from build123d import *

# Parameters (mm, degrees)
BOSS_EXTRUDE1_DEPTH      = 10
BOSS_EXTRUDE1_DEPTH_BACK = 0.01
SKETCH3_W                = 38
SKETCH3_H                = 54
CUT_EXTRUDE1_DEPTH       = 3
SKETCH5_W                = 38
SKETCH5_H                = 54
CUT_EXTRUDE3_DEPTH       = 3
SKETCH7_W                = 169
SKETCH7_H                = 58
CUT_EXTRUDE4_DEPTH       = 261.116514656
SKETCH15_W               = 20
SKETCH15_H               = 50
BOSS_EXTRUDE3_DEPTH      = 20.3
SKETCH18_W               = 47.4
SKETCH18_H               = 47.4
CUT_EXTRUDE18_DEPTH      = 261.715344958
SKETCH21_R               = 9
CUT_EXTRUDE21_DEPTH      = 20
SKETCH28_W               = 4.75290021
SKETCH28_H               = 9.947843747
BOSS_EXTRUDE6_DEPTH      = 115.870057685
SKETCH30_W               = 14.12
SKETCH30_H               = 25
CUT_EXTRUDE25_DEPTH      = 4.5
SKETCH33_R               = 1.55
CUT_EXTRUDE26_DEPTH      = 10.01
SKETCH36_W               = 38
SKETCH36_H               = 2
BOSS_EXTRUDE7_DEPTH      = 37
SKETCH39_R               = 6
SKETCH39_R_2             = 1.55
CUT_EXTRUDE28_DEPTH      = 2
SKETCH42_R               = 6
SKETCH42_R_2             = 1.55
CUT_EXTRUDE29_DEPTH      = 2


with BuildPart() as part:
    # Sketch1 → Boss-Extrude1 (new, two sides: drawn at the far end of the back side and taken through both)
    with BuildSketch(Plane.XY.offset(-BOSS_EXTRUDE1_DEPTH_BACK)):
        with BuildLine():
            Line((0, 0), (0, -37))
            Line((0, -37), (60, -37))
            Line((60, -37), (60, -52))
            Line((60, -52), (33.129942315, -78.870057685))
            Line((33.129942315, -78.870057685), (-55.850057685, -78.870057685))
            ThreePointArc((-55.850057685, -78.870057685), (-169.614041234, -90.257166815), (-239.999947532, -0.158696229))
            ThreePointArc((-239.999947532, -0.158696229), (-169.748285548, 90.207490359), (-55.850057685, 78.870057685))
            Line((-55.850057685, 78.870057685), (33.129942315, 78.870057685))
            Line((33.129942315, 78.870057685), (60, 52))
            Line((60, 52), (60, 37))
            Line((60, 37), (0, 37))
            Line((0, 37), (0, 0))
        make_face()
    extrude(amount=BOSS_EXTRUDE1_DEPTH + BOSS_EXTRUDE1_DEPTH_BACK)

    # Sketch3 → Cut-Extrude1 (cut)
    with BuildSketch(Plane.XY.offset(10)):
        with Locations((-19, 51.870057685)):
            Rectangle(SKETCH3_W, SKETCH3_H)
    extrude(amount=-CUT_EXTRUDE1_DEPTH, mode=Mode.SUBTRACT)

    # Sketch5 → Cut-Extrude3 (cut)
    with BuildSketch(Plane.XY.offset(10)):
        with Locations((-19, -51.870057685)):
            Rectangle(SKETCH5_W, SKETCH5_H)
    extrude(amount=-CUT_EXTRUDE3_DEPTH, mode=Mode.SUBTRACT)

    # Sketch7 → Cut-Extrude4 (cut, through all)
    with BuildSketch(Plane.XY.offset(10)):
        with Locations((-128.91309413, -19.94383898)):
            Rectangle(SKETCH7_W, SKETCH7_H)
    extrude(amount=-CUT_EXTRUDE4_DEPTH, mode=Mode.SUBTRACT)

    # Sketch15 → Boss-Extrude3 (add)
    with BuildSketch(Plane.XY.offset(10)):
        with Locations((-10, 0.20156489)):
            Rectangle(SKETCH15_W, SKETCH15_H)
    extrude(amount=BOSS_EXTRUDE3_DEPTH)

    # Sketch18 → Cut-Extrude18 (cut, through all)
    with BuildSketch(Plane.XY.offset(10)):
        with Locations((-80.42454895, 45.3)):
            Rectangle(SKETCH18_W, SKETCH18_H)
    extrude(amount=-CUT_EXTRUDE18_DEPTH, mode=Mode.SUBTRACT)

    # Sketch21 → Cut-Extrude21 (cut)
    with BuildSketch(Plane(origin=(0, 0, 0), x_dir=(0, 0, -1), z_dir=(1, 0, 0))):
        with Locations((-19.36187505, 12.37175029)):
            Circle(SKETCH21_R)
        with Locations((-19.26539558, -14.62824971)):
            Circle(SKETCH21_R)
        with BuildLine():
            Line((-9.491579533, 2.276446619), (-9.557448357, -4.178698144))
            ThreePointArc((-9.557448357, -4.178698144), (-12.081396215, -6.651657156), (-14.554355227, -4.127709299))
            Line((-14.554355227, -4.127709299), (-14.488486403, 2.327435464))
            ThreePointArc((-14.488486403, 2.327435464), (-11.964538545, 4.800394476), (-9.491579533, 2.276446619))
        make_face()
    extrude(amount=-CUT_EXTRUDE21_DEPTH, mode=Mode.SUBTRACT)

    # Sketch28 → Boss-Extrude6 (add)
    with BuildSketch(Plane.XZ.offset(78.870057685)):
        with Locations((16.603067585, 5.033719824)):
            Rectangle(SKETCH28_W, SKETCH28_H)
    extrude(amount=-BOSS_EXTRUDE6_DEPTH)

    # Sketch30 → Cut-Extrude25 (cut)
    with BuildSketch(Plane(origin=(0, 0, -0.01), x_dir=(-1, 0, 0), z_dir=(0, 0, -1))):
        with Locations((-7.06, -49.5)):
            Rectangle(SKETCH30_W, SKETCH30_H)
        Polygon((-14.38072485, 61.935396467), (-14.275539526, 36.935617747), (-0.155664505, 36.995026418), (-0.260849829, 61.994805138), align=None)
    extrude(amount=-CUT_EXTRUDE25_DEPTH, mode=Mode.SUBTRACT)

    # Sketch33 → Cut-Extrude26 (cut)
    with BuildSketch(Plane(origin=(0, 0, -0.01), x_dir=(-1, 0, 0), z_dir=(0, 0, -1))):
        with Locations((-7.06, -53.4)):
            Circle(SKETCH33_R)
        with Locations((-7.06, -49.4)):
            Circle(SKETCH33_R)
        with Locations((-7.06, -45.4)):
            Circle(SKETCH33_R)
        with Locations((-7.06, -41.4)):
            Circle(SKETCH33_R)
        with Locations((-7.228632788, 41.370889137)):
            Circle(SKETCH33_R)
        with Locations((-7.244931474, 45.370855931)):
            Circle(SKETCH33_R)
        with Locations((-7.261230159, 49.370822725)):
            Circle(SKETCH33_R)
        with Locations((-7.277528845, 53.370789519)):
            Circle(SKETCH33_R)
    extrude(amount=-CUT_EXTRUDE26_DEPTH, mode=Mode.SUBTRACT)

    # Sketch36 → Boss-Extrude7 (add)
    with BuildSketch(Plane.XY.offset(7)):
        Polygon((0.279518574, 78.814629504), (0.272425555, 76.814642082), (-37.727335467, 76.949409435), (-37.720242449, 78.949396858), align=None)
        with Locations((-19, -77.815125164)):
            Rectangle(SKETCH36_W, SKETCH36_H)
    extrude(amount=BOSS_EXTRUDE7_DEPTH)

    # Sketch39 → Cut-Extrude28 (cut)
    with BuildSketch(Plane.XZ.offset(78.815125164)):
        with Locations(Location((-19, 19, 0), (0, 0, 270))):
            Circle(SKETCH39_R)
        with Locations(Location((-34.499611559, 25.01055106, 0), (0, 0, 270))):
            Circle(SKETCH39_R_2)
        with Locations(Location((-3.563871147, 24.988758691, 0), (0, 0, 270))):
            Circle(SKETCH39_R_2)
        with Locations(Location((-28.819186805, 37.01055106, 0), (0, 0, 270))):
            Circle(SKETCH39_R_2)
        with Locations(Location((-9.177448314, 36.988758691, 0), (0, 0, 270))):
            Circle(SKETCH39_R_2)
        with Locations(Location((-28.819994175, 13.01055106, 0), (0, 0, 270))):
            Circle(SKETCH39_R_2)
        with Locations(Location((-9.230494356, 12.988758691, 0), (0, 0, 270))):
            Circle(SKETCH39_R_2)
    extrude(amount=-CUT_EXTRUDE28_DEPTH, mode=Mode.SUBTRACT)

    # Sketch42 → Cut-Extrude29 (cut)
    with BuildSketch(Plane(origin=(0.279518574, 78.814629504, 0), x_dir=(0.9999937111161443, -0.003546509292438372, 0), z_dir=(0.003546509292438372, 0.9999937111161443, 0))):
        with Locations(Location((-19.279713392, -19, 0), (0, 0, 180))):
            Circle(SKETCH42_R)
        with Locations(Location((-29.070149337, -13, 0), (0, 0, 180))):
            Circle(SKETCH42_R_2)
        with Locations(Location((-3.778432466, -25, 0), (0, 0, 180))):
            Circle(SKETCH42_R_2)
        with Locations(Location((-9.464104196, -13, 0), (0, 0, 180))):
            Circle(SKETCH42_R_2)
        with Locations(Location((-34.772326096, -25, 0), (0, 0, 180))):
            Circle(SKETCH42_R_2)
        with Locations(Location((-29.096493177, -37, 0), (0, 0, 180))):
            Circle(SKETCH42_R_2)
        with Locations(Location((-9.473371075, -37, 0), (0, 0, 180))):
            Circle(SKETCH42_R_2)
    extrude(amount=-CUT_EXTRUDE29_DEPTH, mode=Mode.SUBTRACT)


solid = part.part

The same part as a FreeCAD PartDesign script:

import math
import FreeCAD as App
import Part
import Sketcher
from FreeCAD import Vector
Q = App.Units.Quantity

doc = App.newDocument("Part")
body = doc.addObject("PartDesign::Body", "Body")

sketch1 = body.newObject("Sketcher::SketchObject", "Sketch")
sketch1.AttachmentSupport = (doc.getObject("XY_Plane"), [""])
sketch1.MapMode = "FlatFace"
sketch1.addGeometry([
    Part.LineSegment(Vector(60, -37, 0), Vector(0, -37, 0)),
    Part.LineSegment(Vector(0, -37, 0), Vector(0, 37, 0)),
    Part.LineSegment(Vector(0, 37, 0), Vector(60, 37, 0)),
    Part.LineSegment(Vector(60, 37, 0), Vector(60, 52, 0)),
    Part.LineSegment(Vector(60, 52, 0), Vector(33, 79, 0)),
    Part.LineSegment(Vector(33, 79, 0), Vector(-56, 79, 0)),
    Part.ArcOfCircle(Part.Circle(Vector(-123, -19, 0), Vector(0, 0, 1), 118), math.radians(55), math.radians(171)),
    Part.ArcOfCircle(Part.Circle(Vector(-123, 19, 0), Vector(0, 0, 1), 118), math.radians(-171), math.radians(-55)),
    Part.LineSegment(Vector(-56, -79, 0), Vector(33, -79, 0)),
    Part.LineSegment(Vector(33, -79, 0), Vector(60, -52, 0)),
    Part.LineSegment(Vector(60, -52, 0), Vector(60, -37, 0)),
], False)
sketch1.addConstraint([
    Sketcher.Constraint("Coincident", 0, 2, 1, 1),
    Sketcher.Constraint("Coincident", 1, 2, 2, 1),
    Sketcher.Constraint("Coincident", 2, 2, 3, 1),
    Sketcher.Constraint("Coincident", 3, 2, 4, 1),
    Sketcher.Constraint("Coincident", 4, 2, 5, 1),
    Sketcher.Constraint("Coincident", 5, 2, 6, 1),
    Sketcher.Constraint("Coincident", 6, 2, 7, 1),
    Sketcher.Constraint("Coincident", 7, 2, 8, 1),
    Sketcher.Constraint("Coincident", 8, 2, 9, 1),
    Sketcher.Constraint("Coincident", 9, 2, 10, 1),
    Sketcher.Constraint("Coincident", 10, 2, 0, 1),
    Sketcher.Constraint("Horizontal", 0),
    Sketcher.Constraint("Vertical", 1),
    Sketcher.Constraint("Horizontal", 2),
    Sketcher.Constraint("Vertical", 3),
    Sketcher.Constraint("Horizontal", 5),
    Sketcher.Constraint("Horizontal", 8),
    Sketcher.Constraint("Vertical", 10),
    Sketcher.Constraint("Symmetric", 0, 2, 1, 2, -1, 1),
    Sketcher.Constraint("Symmetric", 5, 2, 7, 2, -1),
    Sketcher.Constraint("Symmetric", 3, 2, 9, 2, -1),
    Sketcher.Constraint("Perpendicular", 4, 9),
    Sketcher.Constraint("Vertical", 6, 3, 7, 3),
    Sketcher.Constraint("Vertical", 4, 2, 8, 2),
    Sketcher.Constraint("DistanceX", 0, 2, 0, 1, Q("60 mm")),
    Sketcher.Constraint("DistanceY", 1, 1, 1, 2, Q("74 mm")),
    Sketcher.Constraint("DistanceY", 3, 1, 3, 2, Q("15 mm")),
    Sketcher.Constraint("Distance", 4, Q("38 mm")),
    Sketcher.Constraint("DistanceX", 5, 2, 5, 1, Q("88.98 mm")),
    Sketcher.Constraint("Radius", 6, Q("118.378204 mm")),
    Sketcher.Constraint("Radius", 7, Q("118.439873 mm")),
    Sketcher.Constraint("DistanceX", 6, 2, 6, 3, Q("116.936702 mm")),
])
pad1 = body.newObject("PartDesign::Pad", "Pad")
pad1.Profile = sketch1
pad1.Type = "TwoLengths"
pad1.Length = 10
pad1.Length2 = 0.01

sketch2 = body.newObject("Sketcher::SketchObject", "Sketch001")
sketch2.AttachmentSupport = (doc.getObject("XY_Plane"), [""])
sketch2.MapMode = "FlatFace"
sketch2.AttachmentOffset = App.Placement(Vector(0, 0, 10), App.Rotation())
sketch2.addGeometry([
    Part.LineSegment(Vector(-38, 79, 0), Vector(-38, 25, 0)),
    Part.LineSegment(Vector(-38, 25, 0), Vector(0, 25, 0)),
    Part.LineSegment(Vector(0, 25, 0), Vector(0, 79, 0)),
    Part.LineSegment(Vector(0, 79, 0), Vector(-38, 79, 0)),
], False)
sketch2.addConstraint([
    Sketcher.Constraint("Coincident", 0, 2, 1, 1),
    Sketcher.Constraint("Coincident", 1, 2, 2, 1),
    Sketcher.Constraint("Coincident", 2, 2, 3, 1),
    Sketcher.Constraint("Coincident", 3, 2, 0, 1),
    Sketcher.Constraint("Vertical", 0),
    Sketcher.Constraint("Horizontal", 1),
    Sketcher.Constraint("Vertical", 2),
    Sketcher.Constraint("Horizontal", 3),
    Sketcher.Constraint("PointOnObject", 1, 2, -2),
    Sketcher.Constraint("DistanceX", 1, 1, 1, 2, Q("38 mm")),
    Sketcher.Constraint("DistanceY", 0, 2, 0, 1, Q("54 mm")),
    Sketcher.Constraint("DistanceY", -1, 1, 0, 2, Q("24.870058 mm")),
])
pocket1 = body.newObject("PartDesign::Pocket", "Pocket")
pocket1.Profile = sketch2
pocket1.Length = 3

sketch3 = body.newObject("Sketcher::SketchObject", "Sketch002")
sketch3.AttachmentSupport = (doc.getObject("XY_Plane"), [""])
sketch3.MapMode = "FlatFace"
sketch3.AttachmentOffset = App.Placement(Vector(0, 0, 10), App.Rotation())
sketch3.addGeometry([
    Part.LineSegment(Vector(-38, -25, 0), Vector(-38, -79, 0)),
    Part.LineSegment(Vector(-38, -79, 0), Vector(0, -79, 0)),
    Part.LineSegment(Vector(0, -79, 0), Vector(0, -25, 0)),
    Part.LineSegment(Vector(0, -25, 0), Vector(-38, -25, 0)),
], False)
sketch3.addConstraint([
    Sketcher.Constraint("Coincident", 0, 2, 1, 1),
    Sketcher.Constraint("Coincident", 1, 2, 2, 1),
    Sketcher.Constraint("Coincident", 2, 2, 3, 1),
    Sketcher.Constraint("Coincident", 3, 2, 0, 1),
    Sketcher.Constraint("Vertical", 0),
    Sketcher.Constraint("Horizontal", 1),
    Sketcher.Constraint("Vertical", 2),
    Sketcher.Constraint("Horizontal", 3),
    Sketcher.Constraint("PointOnObject", 1, 2, -2),
    Sketcher.Constraint("DistanceX", 1, 1, 1, 2, Q("38 mm")),
    Sketcher.Constraint("DistanceY", 0, 2, 0, 1, Q("54 mm")),
    Sketcher.Constraint("DistanceY", 0, 2, -1, 1, Q("78.870058 mm")),
])
pocket2 = body.newObject("PartDesign::Pocket", "Pocket001")
pocket2.Profile = sketch3
pocket2.Length = 3

sketch4 = body.newObject("Sketcher::SketchObject", "Sketch003")
sketch4.AttachmentSupport = (doc.getObject("XY_Plane"), [""])
sketch4.MapMode = "FlatFace"
sketch4.AttachmentOffset = App.Placement(Vector(0, 0, 10), App.Rotation())
sketch4.addGeometry([
    Part.LineSegment(Vector(-213, 9, 0), Vector(-213, -49, 0)),
    Part.LineSegment(Vector(-213, -49, 0), Vector(-44, -49, 0)),
    Part.LineSegment(Vector(-44, -49, 0), Vector(-44, 9, 0)),
    Part.LineSegment(Vector(-44, 9, 0), Vector(-213, 9, 0)),
], False)
sketch4.addConstraint([
    Sketcher.Constraint("Coincident", 0, 2, 1, 1),
    Sketcher.Constraint("Coincident", 1, 2, 2, 1),
    Sketcher.Constraint("Coincident", 2, 2, 3, 1),
    Sketcher.Constraint("Coincident", 3, 2, 0, 1),
    Sketcher.Constraint("Vertical", 0),
    Sketcher.Constraint("Horizontal", 1),
    Sketcher.Constraint("Vertical", 2),
    Sketcher.Constraint("Horizontal", 3),
    Sketcher.Constraint("DistanceX", 1, 1, 1, 2, Q("169 mm")),
    Sketcher.Constraint("DistanceY", 0, 2, 0, 1, Q("58 mm")),
    Sketcher.Constraint("DistanceY", 0, 2, -1, 1, Q("48.943839 mm")),
    Sketcher.Constraint("DistanceX", 0, 2, -1, 1, Q("213.413094 mm")),
])
pocket3 = body.newObject("PartDesign::Pocket", "Pocket002")
pocket3.Profile = sketch4
pocket3.Type = "ThroughAll"

sketch5 = body.newObject("Sketcher::SketchObject", "Sketch004")
sketch5.AttachmentSupport = (doc.getObject("XY_Plane"), [""])
sketch5.MapMode = "FlatFace"
sketch5.AttachmentOffset = App.Placement(Vector(0, 0, 10), App.Rotation())
sketch5.addGeometry([
    Part.LineSegment(Vector(-20, 25, 0), Vector(-20, -25, 0)),
    Part.LineSegment(Vector(-20, -25, 0), Vector(0, -25, 0)),
    Part.LineSegment(Vector(0, -25, 0), Vector(0, 25, 0)),
    Part.LineSegment(Vector(0, 25, 0), Vector(-20, 25, 0)),
], False)
sketch5.addConstraint([
    Sketcher.Constraint("Coincident", 0, 2, 1, 1),
    Sketcher.Constraint("Coincident", 1, 2, 2, 1),
    Sketcher.Constraint("Coincident", 2, 2, 3, 1),
    Sketcher.Constraint("Coincident", 3, 2, 0, 1),
    Sketcher.Constraint("Vertical", 0),
    Sketcher.Constraint("Horizontal", 1),
    Sketcher.Constraint("Vertical", 2),
    Sketcher.Constraint("Horizontal", 3),
    Sketcher.Constraint("PointOnObject", 1, 2, -2),
    Sketcher.Constraint("DistanceX", 1, 1, 1, 2, Q("20 mm")),
    Sketcher.Constraint("DistanceY", 0, 2, 0, 1, Q("50 mm")),
    Sketcher.Constraint("DistanceY", 0, 2, -1, 1, Q("24.798435 mm")),
])
pad2 = body.newObject("PartDesign::Pad", "Pad001")
pad2.Profile = sketch5
pad2.Length = 20.3

sketch6 = body.newObject("Sketcher::SketchObject", "Sketch005")
sketch6.AttachmentSupport = (doc.getObject("XY_Plane"), [""])
sketch6.MapMode = "FlatFace"
sketch6.AttachmentOffset = App.Placement(Vector(0, 0, 10), App.Rotation())
sketch6.addGeometry([
    Part.LineSegment(Vector(-104, 69, 0), Vector(-104, 22, 0)),
    Part.LineSegment(Vector(-104, 22, 0), Vector(-57, 22, 0)),
    Part.LineSegment(Vector(-57, 22, 0), Vector(-57, 69, 0)),
    Part.LineSegment(Vector(-57, 69, 0), Vector(-104, 69, 0)),
], False)
sketch6.addConstraint([
    Sketcher.Constraint("Coincident", 0, 2, 1, 1),
    Sketcher.Constraint("Coincident", 1, 2, 2, 1),
    Sketcher.Constraint("Coincident", 2, 2, 3, 1),
    Sketcher.Constraint("Coincident", 3, 2, 0, 1),
    Sketcher.Constraint("Vertical", 0),
    Sketcher.Constraint("Horizontal", 1),
    Sketcher.Constraint("Vertical", 2),
    Sketcher.Constraint("Horizontal", 3),
    Sketcher.Constraint("Equal", 3, 0),
    Sketcher.Constraint("DistanceX", 1, 1, 1, 2, Q("47.4 mm")),
    Sketcher.Constraint("DistanceY", -1, 1, 2, 2, Q("69 mm")),
    Sketcher.Constraint("DistanceX", 0, 2, -1, 1, Q("104.124549 mm")),
])
pocket4 = body.newObject("PartDesign::Pocket", "Pocket003")
pocket4.Profile = sketch6
pocket4.Type = "ThroughAll"

sketch7 = body.newObject("Sketcher::SketchObject", "Sketch006")
sketch7.AttachmentSupport = (doc.getObject("YZ_Plane"), [""])
sketch7.MapMode = "FlatFace"
sketch7.addGeometry([
    Part.Circle(Vector(12.4, 19.4, 0), Vector(0, 0, 1), 9),
    Part.Circle(Vector(-14.6, 19.3, 0), Vector(0, 0, 1), 9),
    Part.LineSegment(Vector(-4.2, 9.6, 0), Vector(2.3, 9.5, 0)),
    Part.ArcOfCircle(Part.Circle(Vector(2.3, 12, 0), Vector(0, 0, 1), 2.5), math.radians(-91), math.radians(89)),
    Part.LineSegment(Vector(2.3, 14.5, 0), Vector(-4.1, 14.6, 0)),
    Part.ArcOfCircle(Part.Circle(Vector(-4.2, 12.1, 0), Vector(0, 0, 1), 2.5), math.radians(89), math.radians(269)),
], False)
sketch7.addConstraint([
    Sketcher.Constraint("Tangent", 2, 2, 3, 1),
    Sketcher.Constraint("Tangent", 3, 2, 4, 1),
    Sketcher.Constraint("Tangent", 4, 2, 5, 1),
    Sketcher.Constraint("Tangent", 5, 2, 2, 1),
    Sketcher.Constraint("Equal", 0, 1),
    Sketcher.Constraint("Equal", 3, 5),
    Sketcher.Constraint("Diameter", 0, Q("18 mm")),
    Sketcher.Constraint("DistanceX", 1, 3, 0, 3, Q("27 mm")),
    Sketcher.Constraint("Radius", 3, Q("2.498584 mm")),
    Sketcher.Constraint("DistanceY", -1, 1, 5, 3, Q("12.055902 mm")),
    Sketcher.Constraint("DistanceX", 5, 2, -1, 1, Q("4.178698 mm")),
    Sketcher.Constraint("Distance", 2, Q("6.455481 mm")),
    Sketcher.Constraint("DistanceX", -1, 1, 0, 3, Q("12.37175 mm")),
    Sketcher.Constraint("DistanceX", -1, 1, 3, 3, Q("2.301941 mm")),
    Sketcher.Constraint("DistanceY", 1, 3, 0, 3, Q("0.096479 mm")),
    Sketcher.Constraint("DistanceY", 3, 2, 0, 3, Q("4.873389 mm")),
])
pocket5 = body.newObject("PartDesign::Pocket", "Pocket004")
pocket5.Profile = sketch7
pocket5.Length = 20

sketch8 = body.newObject("Sketcher::SketchObject", "Sketch007")
sketch8.AttachmentSupport = (doc.getObject("XZ_Plane"), [""])
sketch8.MapMode = "FlatFace"
sketch8.AttachmentOffset = App.Placement(Vector(0, 0, 78.870058), App.Rotation())
sketch8.addGeometry([
    Part.LineSegment(Vector(14.2, 10, 0), Vector(14.2, 0.1, 0)),
    Part.LineSegment(Vector(14.2, 0.1, 0), Vector(19, 0.1, 0)),
    Part.LineSegment(Vector(19, 0.1, 0), Vector(19, 10, 0)),
    Part.LineSegment(Vector(19, 10, 0), Vector(14.2, 10, 0)),
], False)
sketch8.addConstraint([
    Sketcher.Constraint("Coincident", 0, 2, 1, 1),
    Sketcher.Constraint("Coincident", 1, 2, 2, 1),
    Sketcher.Constraint("Coincident", 2, 2, 3, 1),
    Sketcher.Constraint("Coincident", 3, 2, 0, 1),
    Sketcher.Constraint("Vertical", 0),
    Sketcher.Constraint("Horizontal", 1),
    Sketcher.Constraint("Vertical", 2),
    Sketcher.Constraint("Horizontal", 3),
    Sketcher.Constraint("DistanceX", 1, 1, 1, 2, Q("4.7529 mm")),
    Sketcher.Constraint("DistanceY", 0, 2, 0, 1, Q("9.947844 mm")),
    Sketcher.Constraint("DistanceY", -1, 1, 2, 2, Q("10.007642 mm")),
    Sketcher.Constraint("DistanceX", -1, 1, 0, 2, Q("14.226617 mm")),
])
pad3 = body.newObject("PartDesign::Pad", "Pad002")
pad3.Profile = sketch8
pad3.Length = 115.870058
pad3.Reversed = True

sketch9 = body.newObject("Sketcher::SketchObject", "Sketch008")
sketch9.AttachmentSupport = (doc.getObject("XY_Plane"), [""])
sketch9.MapMode = "FlatFace"
sketch9.AttachmentOffset = App.Placement(Vector(0, 0, -0.01), App.Rotation())
sketch9.addGeometry([
    Part.LineSegment(Vector(14, -37, 0), Vector(14, -62, 0)),
    Part.LineSegment(Vector(14, -62, 0), Vector(0, -62, 0)),
    Part.LineSegment(Vector(0, -62, 0), Vector(0, -37, 0)),
    Part.LineSegment(Vector(0, -37, 0), Vector(14, -37, 0)),
    Part.LineSegment(Vector(14, 62, 0), Vector(14, 37, 0)),
    Part.LineSegment(Vector(14, 37, 0), Vector(0, 37, 0)),
    Part.LineSegment(Vector(0, 37, 0), Vector(0, 62, 0)),
    Part.LineSegment(Vector(0, 62, 0), Vector(14, 62, 0)),
], False)
sketch9.addConstraint([
    Sketcher.Constraint("Coincident", 0, 2, 1, 1),
    Sketcher.Constraint("Coincident", 1, 2, 2, 1),
    Sketcher.Constraint("Coincident", 2, 2, 3, 1),
    Sketcher.Constraint("Coincident", 3, 2, 0, 1),
    Sketcher.Constraint("Coincident", 4, 2, 5, 1),
    Sketcher.Constraint("Coincident", 5, 2, 6, 1),
    Sketcher.Constraint("Coincident", 6, 2, 7, 1),
    Sketcher.Constraint("Coincident", 7, 2, 4, 1),
    Sketcher.Constraint("Vertical", 0),
    Sketcher.Constraint("Horizontal", 1),
    Sketcher.Constraint("Vertical", 2),
    Sketcher.Constraint("Horizontal", 3),
    Sketcher.Constraint("PointOnObject", 1, 2, -2),
    Sketcher.Constraint("Perpendicular", 4, 5),
    Sketcher.Constraint("Perpendicular", 5, 6),
    Sketcher.Constraint("Perpendicular", 6, 7),
    Sketcher.Constraint("DistanceY", 0, 2, 0, 1, Q("25 mm")),
    Sketcher.Constraint("Distance", 4, Q("25 mm")),
    Sketcher.Constraint("DistanceY", 0, 2, -1, 1, Q("62 mm")),
    Sketcher.Constraint("DistanceX", 1, 2, 1, 1, Q("14.12 mm")),
    Sketcher.Constraint("Distance", 5, Q("14.12 mm")),
    Sketcher.Constraint("DistanceX", -1, 1, 4, 2, Q("14.27554 mm")),
    Sketcher.Constraint("DistanceX", -1, 1, 6, 2, Q("0.26085 mm")),
    Sketcher.Constraint("DistanceY", -1, 1, 4, 2, Q("36.935618 mm")),
])
pocket6 = body.newObject("PartDesign::Pocket", "Pocket005")
pocket6.Profile = sketch9
pocket6.Length = 4.5
pocket6.Reversed = True

sketch10 = body.newObject("Sketcher::SketchObject", "Sketch009")
sketch10.AttachmentSupport = (doc.getObject("XY_Plane"), [""])
sketch10.MapMode = "FlatFace"
sketch10.AttachmentOffset = App.Placement(Vector(0, 0, -0.01), App.Rotation())
sketch10.addGeometry([
    Part.Circle(Vector(7.1, -53.4, 0), Vector(0, 0, 1), 1.6),
    Part.Circle(Vector(7.1, -49.4, 0), Vector(0, 0, 1), 1.6),
    Part.Circle(Vector(7.1, -45.4, 0), Vector(0, 0, 1), 1.6),
    Part.Circle(Vector(7.1, -41.4, 0), Vector(0, 0, 1), 1.6),
    Part.Circle(Vector(7.2, 41.4, 0), Vector(0, 0, 1), 1.6),
    Part.Circle(Vector(7.2, 45.4, 0), Vector(0, 0, 1), 1.6),
    Part.Circle(Vector(7.3, 49.4, 0), Vector(0, 0, 1), 1.6),
    Part.Circle(Vector(7.3, 53.4, 0), Vector(0, 0, 1), 1.6),
], False)
sketch10.addConstraint([
    Sketcher.Constraint("Equal", 0, 1),
    Sketcher.Constraint("Equal", 1, 2),
    Sketcher.Constraint("Equal", 2, 3),
    Sketcher.Constraint("Equal", 3, 4),
    Sketcher.Constraint("Equal", 4, 5),
    Sketcher.Constraint("Equal", 5, 6),
    Sketcher.Constraint("Equal", 6, 7),
    Sketcher.Constraint("Vertical", 0, 3, 1, 3),
    Sketcher.Constraint("Vertical", 1, 3, 2, 3),
    Sketcher.Constraint("Vertical", 2, 3, 3, 3),
    Sketcher.Constraint("Diameter", 0, Q("3.1 mm")),
    Sketcher.Constraint("DistanceY", 0, 3, 1, 3, Q("4 mm")),
    Sketcher.Constraint("DistanceY", 1, 3, 2, 3, Q("4 mm")),
    Sketcher.Constraint("DistanceY", 2, 3, 3, 3, Q("4 mm")),
    Sketcher.Constraint("DistanceY", 0, 3, -1, 1, Q("53.4 mm")),
    Sketcher.Constraint("DistanceX", -1, 1, 0, 3, Q("7.06 mm")),
    Sketcher.Constraint("DistanceX", 4, 3, 5, 3, Q("0.016299 mm")),
    Sketcher.Constraint("DistanceX", 5, 3, 6, 3, Q("0.016299 mm")),
    Sketcher.Constraint("DistanceX", 6, 3, 7, 3, Q("0.016299 mm")),
    Sketcher.Constraint("DistanceY", 4, 3, 7, 3, Q("11.9999 mm")),
    Sketcher.Constraint("DistanceY", -1, 1, 4, 3, Q("41.370889 mm")),
    Sketcher.Constraint("DistanceX", -1, 1, 5, 3, Q("7.244931 mm")),
    Sketcher.Constraint("DistanceY", -1, 1, 5, 3, Q("45.370856 mm")),
    Sketcher.Constraint("DistanceY", -1, 1, 6, 3, Q("49.370823 mm")),
])
pocket7 = body.newObject("PartDesign::Pocket", "Pocket006")
pocket7.Profile = sketch10
pocket7.Length = 10.01
pocket7.Reversed = True

sketch11 = body.newObject("Sketcher::SketchObject", "Sketch010")
sketch11.AttachmentSupport = (doc.getObject("XY_Plane"), [""])
sketch11.MapMode = "FlatFace"
sketch11.AttachmentOffset = App.Placement(Vector(0, 0, 7), App.Rotation())
sketch11.addGeometry([
    Part.LineSegment(Vector(0.3, 76.8, 0), Vector(0.3, 78.8, 0)),
    Part.LineSegment(Vector(0.3, 78.8, 0), Vector(-37.7, 78.9, 0)),
    Part.LineSegment(Vector(-37.7, 78.9, 0), Vector(-37.7, 76.9, 0)),
    Part.LineSegment(Vector(-37.7, 76.9, 0), Vector(0.3, 76.8, 0)),
    Part.LineSegment(Vector(-38, -76.8, 0), Vector(-38, -78.8, 0)),
    Part.LineSegment(Vector(-38, -78.8, 0), Vector(0, -78.8, 0)),
    Part.LineSegment(Vector(0, -78.8, 0), Vector(0, -76.8, 0)),
    Part.LineSegment(Vector(0, -76.8, 0), Vector(-38, -76.8, 0)),
], False)
sketch11.addConstraint([
    Sketcher.Constraint("Coincident", 0, 2, 1, 1),
    Sketcher.Constraint("Coincident", 1, 2, 2, 1),
    Sketcher.Constraint("Coincident", 2, 2, 3, 1),
    Sketcher.Constraint("Coincident", 3, 2, 0, 1),
    Sketcher.Constraint("Coincident", 4, 2, 5, 1),
    Sketcher.Constraint("Coincident", 5, 2, 6, 1),
    Sketcher.Constraint("Coincident", 6, 2, 7, 1),
    Sketcher.Constraint("Coincident", 7, 2, 4, 1),
    Sketcher.Constraint("Vertical", 4),
    Sketcher.Constraint("Horizontal", 5),
    Sketcher.Constraint("Vertical", 6),
    Sketcher.Constraint("Horizontal", 7),
    Sketcher.Constraint("PointOnObject", 5, 2, -2),
    Sketcher.Constraint("Perpendicular", 0, 1),
    Sketcher.Constraint("Perpendicular", 1, 2),
    Sketcher.Constraint("Perpendicular", 2, 3),
    Sketcher.Constraint("DistanceX", 5, 1, 5, 2, Q("38 mm")),
    Sketcher.Constraint("DistanceY", 4, 2, 4, 1, Q("2 mm")),
    Sketcher.Constraint("Distance", 0, Q("2 mm")),
    Sketcher.Constraint("Distance", 1, Q("38 mm")),
    Sketcher.Constraint("DistanceX", -1, 1, 0, 2, Q("0.279519 mm")),
    Sketcher.Constraint("DistanceY", -1, 1, 0, 2, Q("78.81463 mm")),
    Sketcher.Constraint("DistanceY", -1, 1, 2, 2, Q("76.949409 mm")),
    Sketcher.Constraint("DistanceY", 4, 2, -1, 1, Q("78.815125 mm")),
])
pad4 = body.newObject("PartDesign::Pad", "Pad003")
pad4.Profile = sketch11
pad4.Length = 37

sketch12 = body.newObject("Sketcher::SketchObject", "Sketch011")
sketch12.AttachmentSupport = (doc.getObject("XZ_Plane"), [""])
sketch12.MapMode = "FlatFace"
sketch12.AttachmentOffset = App.Placement(Vector(0, 0, 78.815125), App.Rotation())
sketch12.addGeometry([
    Part.Circle(Vector(-19, 19, 0), Vector(0, 0, 1), 6),
    Part.Circle(Vector(-34.5, 25, 0), Vector(0, 0, 1), 1.6),
    Part.Circle(Vector(-3.6, 25, 0), Vector(0, 0, 1), 1.6),
    Part.Circle(Vector(-28.8, 37, 0), Vector(0, 0, 1), 1.6),
    Part.Circle(Vector(-9.2, 37, 0), Vector(0, 0, 1), 1.6),
    Part.Circle(Vector(-28.8, 13, 0), Vector(0, 0, 1), 1.6),
    Part.Circle(Vector(-9.2, 13, 0), Vector(0, 0, 1), 1.6),
], False)
sketch12.addConstraint([
    Sketcher.Constraint("Equal", 1, 2),
    Sketcher.Constraint("Equal", 2, 3),
    Sketcher.Constraint("Equal", 3, 4),
    Sketcher.Constraint("Equal", 4, 5),
    Sketcher.Constraint("Equal", 5, 6),
    Sketcher.Constraint("Diameter", 0, Q("12 mm")),
    Sketcher.Constraint("Diameter", 1, Q("3.1 mm")),
    Sketcher.Constraint("DistanceX", 0, 3, -1, 1, Q("19 mm")),
    Sketcher.Constraint("DistanceY", -1, 1, 0, 3, Q("19 mm")),
    Sketcher.Constraint("DistanceY", 1, 3, 3, 3, Q("12 mm")),
    Sketcher.Constraint("DistanceY", 2, 3, 4, 3, Q("12 mm")),
    Sketcher.Constraint("DistanceY", 5, 3, 1, 3, Q("12 mm")),
    Sketcher.Constraint("DistanceY", 6, 3, 2, 3, Q("12 mm")),
    Sketcher.Constraint("DistanceX", 5, 3, 6, 3, Q("19.5895 mm")),
    Sketcher.Constraint("DistanceX", 1, 3, -1, 1, Q("34.499612 mm")),
    Sketcher.Constraint("DistanceY", -1, 1, 1, 3, Q("25.010551 mm")),
    Sketcher.Constraint("DistanceX", 2, 3, -1, 1, Q("3.563871 mm")),
    Sketcher.Constraint("DistanceY", -1, 1, 2, 3, Q("24.988759 mm")),
    Sketcher.Constraint("DistanceX", 4, 3, -1, 1, Q("9.177448 mm")),
    Sketcher.Constraint("DistanceX", 3, 3, 4, 3, Q("19.641738 mm")),
    Sketcher.Constraint("DistanceX", 5, 3, -1, 1, Q("28.819994 mm")),
])
pocket8 = body.newObject("PartDesign::Pocket", "Pocket007")
pocket8.Profile = sketch12
pocket8.Length = 2

sketch13 = body.newObject("Sketcher::SketchObject", "Sketch012")
sketch13.Placement = App.Placement(Vector(0.279519, 78.81463, 0), App.Rotation(Vector(0.999993711, -0.003546509, 0), Vector(0, 0, -1), Vector(0.003546509, 0.999993711, 0), "ZXY"))
sketch13.addGeometry([
    Part.Circle(Vector(-19.3, -19, 0), Vector(0, 0, 1), 6),
    Part.Circle(Vector(-29.1, -13, 0), Vector(0, 0, 1), 1.6),
    Part.Circle(Vector(-3.8, -25, 0), Vector(0, 0, 1), 1.6),
    Part.Circle(Vector(-9.5, -13, 0), Vector(0, 0, 1), 1.6),
    Part.Circle(Vector(-34.8, -25, 0), Vector(0, 0, 1), 1.6),
    Part.Circle(Vector(-29.1, -37, 0), Vector(0, 0, 1), 1.6),
    Part.Circle(Vector(-9.5, -37, 0), Vector(0, 0, 1), 1.6),
], False)
sketch13.addConstraint([
    Sketcher.Constraint("Equal", 1, 2),
    Sketcher.Constraint("Equal", 2, 3),
    Sketcher.Constraint("Equal", 3, 4),
    Sketcher.Constraint("Equal", 4, 5),
    Sketcher.Constraint("Equal", 5, 6),
    Sketcher.Constraint("Horizontal", 1, 3, 3, 3),
    Sketcher.Constraint("Horizontal", 2, 3, 4, 3),
    Sketcher.Constraint("Horizontal", 5, 3, 6, 3),
    Sketcher.Constraint("Diameter", 0, Q("12 mm")),
    Sketcher.Constraint("Diameter", 1, Q("3.1 mm")),
    Sketcher.Constraint("DistanceY", 0, 3, -1, 1, Q("19 mm")),
    Sketcher.Constraint("DistanceY", 1, 3, -1, 1, Q("13 mm")),
    Sketcher.Constraint("DistanceY", 2, 3, -1, 1, Q("25 mm")),
    Sketcher.Constraint("DistanceY", 5, 3, -1, 1, Q("37 mm")),
    Sketcher.Constraint("DistanceX", 1, 3, -1, 1, Q("29.070149 mm")),
    Sketcher.Constraint("DistanceX", 6, 3, -1, 1, Q("9.473371 mm")),
    Sketcher.Constraint("DistanceX", 0, 3, 2, 3, Q("15.501281 mm")),
    Sketcher.Constraint("DistanceX", 0, 3, 3, 3, Q("9.815609 mm")),
    Sketcher.Constraint("DistanceX", 4, 3, 3, 3, Q("25.308222 mm")),
    Sketcher.Constraint("DistanceX", 5, 3, 0, 3, Q("9.81678 mm")),
    Sketcher.Constraint("DistanceX", 6, 3, 2, 3, Q("5.694939 mm")),
])
pocket9 = body.newObject("PartDesign::Pocket", "Pocket008")
pocket9.Profile = sketch13
pocket9.Length = 2

doc.recompute()
